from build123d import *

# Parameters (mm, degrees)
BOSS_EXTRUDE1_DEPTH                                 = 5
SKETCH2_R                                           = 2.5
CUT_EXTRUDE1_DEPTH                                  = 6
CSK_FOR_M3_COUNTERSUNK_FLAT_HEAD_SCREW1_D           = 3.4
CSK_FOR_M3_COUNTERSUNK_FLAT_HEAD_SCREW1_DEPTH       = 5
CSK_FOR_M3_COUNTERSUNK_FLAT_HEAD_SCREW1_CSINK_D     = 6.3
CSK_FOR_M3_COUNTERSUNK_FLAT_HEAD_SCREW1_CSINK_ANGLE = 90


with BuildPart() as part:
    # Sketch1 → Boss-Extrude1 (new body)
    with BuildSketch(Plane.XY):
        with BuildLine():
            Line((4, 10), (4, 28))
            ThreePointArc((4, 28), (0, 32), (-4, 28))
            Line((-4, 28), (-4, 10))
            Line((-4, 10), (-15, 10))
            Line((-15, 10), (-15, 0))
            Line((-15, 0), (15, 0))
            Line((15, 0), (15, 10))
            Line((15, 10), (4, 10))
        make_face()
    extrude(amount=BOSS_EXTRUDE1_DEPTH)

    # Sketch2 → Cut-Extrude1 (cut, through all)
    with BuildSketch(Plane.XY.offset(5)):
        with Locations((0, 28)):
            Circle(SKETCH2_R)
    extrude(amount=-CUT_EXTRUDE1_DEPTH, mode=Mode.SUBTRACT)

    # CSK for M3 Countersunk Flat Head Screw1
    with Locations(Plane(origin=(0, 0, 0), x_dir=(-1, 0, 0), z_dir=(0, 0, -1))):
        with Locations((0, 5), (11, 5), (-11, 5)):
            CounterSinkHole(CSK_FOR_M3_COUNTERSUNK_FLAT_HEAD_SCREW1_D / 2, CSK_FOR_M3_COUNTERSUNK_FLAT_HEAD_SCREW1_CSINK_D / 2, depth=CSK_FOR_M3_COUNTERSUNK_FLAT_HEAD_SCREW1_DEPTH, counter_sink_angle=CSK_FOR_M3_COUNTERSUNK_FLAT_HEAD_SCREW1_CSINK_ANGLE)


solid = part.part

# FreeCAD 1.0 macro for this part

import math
import FreeCAD as App
import Part
import Sketcher
from FreeCAD import Vector

doc = App.newDocument("Part")
body = doc.addObject("PartDesign::Body", "Body")

# Sketch on XY plane
sketch1 = body.newObject("Sketcher::SketchObject", "Sketch")
sketch1.AttachmentSupport = (doc.getObject("XY_Plane"), [""])
sketch1.MapMode = "FlatFace"
sketch1.addGeometry([
    Part.LineSegment(Vector(4, 10, 0), Vector(4, 28, 0)),  # 0
    Part.ArcOfCircle(Part.Circle(Vector(0, 28, 0), Vector(0, 0, 1), 4), math.radians(0), math.radians(180)),  # 1
    Part.LineSegment(Vector(-4, 28, 0), Vector(-4, 10, 0)),  # 2
    Part.LineSegment(Vector(-4, 10, 0), Vector(-15, 10, 0)),  # 3
    Part.LineSegment(Vector(-15, 10, 0), Vector(-15, 0, 0)),  # 4
    Part.LineSegment(Vector(-15, 0, 0), Vector(15, 0, 0)),  # 5
    Part.LineSegment(Vector(15, 0, 0), Vector(15, 10, 0)),  # 6
    Part.LineSegment(Vector(15, 10, 0), Vector(4, 10, 0)),  # 7
], False)
sketch1.addConstraint([
    Sketcher.Constraint("Tangent", 0, 2, 1, 1),
    Sketcher.Constraint("Tangent", 1, 2, 2, 1),
    Sketcher.Constraint("Coincident", 2, 2, 3, 1),
    Sketcher.Constraint("Coincident", 3, 2, 4, 1),
    Sketcher.Constraint("Coincident", 4, 2, 5, 1),
    Sketcher.Constraint("Coincident", 5, 2, 6, 1),
    Sketcher.Constraint("Coincident", 6, 2, 7, 1),
    Sketcher.Constraint("Coincident", 7, 2, 0, 1),
    Sketcher.Constraint("Vertical", 0),
    Sketcher.Constraint("Vertical", 2),
    Sketcher.Constraint("Horizontal", 3),
    Sketcher.Constraint("Vertical", 4),
    Sketcher.Constraint("Horizontal", 5),
    Sketcher.Constraint("Vertical", 6),
    Sketcher.Constraint("Horizontal", 7),
    Sketcher.Constraint("Symmetric", 4, 2, 5, 2, -1, 1),
    Sketcher.Constraint("Symmetric", 2, 2, 7, 2, -2),
    Sketcher.Constraint("Radius", 1, 4.0),
    Sketcher.Constraint("DistanceX", 3, 2, 3, 1, 11.0),
    Sketcher.Constraint("DistanceY", 0, 1, 0, 2, 18.0),
    Sketcher.Constraint("DistanceY", 4, 2, 4, 1, 10.0),
])
pad1 = body.newObject("PartDesign::Pad", "Pad")
pad1.Profile = sketch1
pad1.Length = 5

# Sketch on XY plane
sketch2 = body.newObject("Sketcher::SketchObject", "Sketch001")
sketch2.AttachmentSupport = (doc.getObject("XY_Plane"), [""])
sketch2.MapMode = "FlatFace"
sketch2.AttachmentOffset = App.Placement(Vector(0, 0, 5), App.Rotation())
sketch2.addGeometry(Part.Circle(Vector(0, 28, 0), Vector(0, 0, 1), 2.5), False)
sketch2.addConstraint([
    Sketcher.Constraint("PointOnObject", 0, 3, -2),
    Sketcher.Constraint("Diameter", 0, 5.0),
    Sketcher.Constraint("DistanceY", -1, 1, 0, 3, 28.0),
])
pocket1 = body.newObject("PartDesign::Pocket", "Pocket")
pocket1.Profile = sketch2
pocket1.Type = "ThroughAll"

# Sketch on XY plane
sketch3 = body.newObject("Sketcher::SketchObject", "Sketch002")
sketch3.AttachmentSupport = (doc.getObject("XY_Plane"), [""])
sketch3.MapMode = "FlatFace"
sketch3.addGeometry([
    Part.Circle(Vector(0, 5, 0), Vector(0, 0, 1), 1.7),
    Part.Circle(Vector(-11, 5, 0), Vector(0, 0, 1), 1.7),
    Part.Circle(Vector(11, 5, 0), Vector(0, 0, 1), 1.7),
], False)
sketch3.addConstraint([
    Sketcher.Constraint("Equal", 0, 1),
    Sketcher.Constraint("Equal", 1, 2),
    Sketcher.Constraint("Symmetric", 1, 3, 2, 3, -2),
    Sketcher.Constraint("PointOnObject", 0, 3, -2),
    Sketcher.Constraint("Horizontal", 0, 3, 1, 3),
    Sketcher.Constraint("Diameter", 0, 3.4),
    Sketcher.Constraint("DistanceY", -1, 1, 0, 3, 5.0),
    Sketcher.Constraint("DistanceX", 1, 3, -1, 1, 11.0),
])
doc.recompute()
hole = body.newObject("PartDesign::Hole", "Hole")
hole.Profile = sketch3
hole.ThreadType = "None"
hole.Diameter = 3.4
hole.DepthType = "Dimension"
hole.Depth = 5
hole.DrillPoint = "Flat"
hole.HoleCutType = "Countersink"
hole.HoleCutDiameter = 6.3
hole.HoleCutCountersinkAngle = 90
hole.Reversed = True

doc.recompute()
